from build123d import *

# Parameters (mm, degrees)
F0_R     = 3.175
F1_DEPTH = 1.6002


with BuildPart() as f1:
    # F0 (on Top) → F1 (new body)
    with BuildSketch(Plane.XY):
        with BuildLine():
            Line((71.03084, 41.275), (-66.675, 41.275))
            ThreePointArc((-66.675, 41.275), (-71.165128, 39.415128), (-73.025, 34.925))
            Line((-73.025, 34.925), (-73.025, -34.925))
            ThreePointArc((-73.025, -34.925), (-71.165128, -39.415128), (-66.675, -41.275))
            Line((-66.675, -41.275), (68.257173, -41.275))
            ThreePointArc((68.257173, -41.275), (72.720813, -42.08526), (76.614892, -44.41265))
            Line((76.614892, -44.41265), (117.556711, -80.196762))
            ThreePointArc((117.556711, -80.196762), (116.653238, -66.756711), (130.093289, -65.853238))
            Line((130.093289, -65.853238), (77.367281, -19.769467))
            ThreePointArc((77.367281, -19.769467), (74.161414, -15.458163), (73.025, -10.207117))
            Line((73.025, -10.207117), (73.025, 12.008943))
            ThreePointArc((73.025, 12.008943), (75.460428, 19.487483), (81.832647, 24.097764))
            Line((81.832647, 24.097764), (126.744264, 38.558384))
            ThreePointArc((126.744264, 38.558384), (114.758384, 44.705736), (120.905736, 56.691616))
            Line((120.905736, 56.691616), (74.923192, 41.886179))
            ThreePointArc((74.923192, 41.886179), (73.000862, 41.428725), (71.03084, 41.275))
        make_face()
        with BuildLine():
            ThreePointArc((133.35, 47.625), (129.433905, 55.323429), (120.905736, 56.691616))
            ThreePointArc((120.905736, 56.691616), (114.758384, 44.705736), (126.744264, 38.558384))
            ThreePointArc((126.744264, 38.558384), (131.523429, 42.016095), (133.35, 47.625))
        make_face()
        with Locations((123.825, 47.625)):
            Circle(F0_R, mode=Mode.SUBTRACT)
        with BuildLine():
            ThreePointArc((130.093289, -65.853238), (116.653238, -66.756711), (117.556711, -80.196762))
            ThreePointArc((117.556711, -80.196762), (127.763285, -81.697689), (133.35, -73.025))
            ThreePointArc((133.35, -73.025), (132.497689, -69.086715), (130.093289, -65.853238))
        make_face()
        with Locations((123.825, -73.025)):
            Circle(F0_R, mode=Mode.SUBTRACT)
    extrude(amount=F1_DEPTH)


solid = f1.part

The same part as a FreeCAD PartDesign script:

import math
import FreeCAD as App
import Part
import Sketcher

V = App.Vector
Q = App.Units.Quantity

doc = App.newDocument("Part")
params = doc.addObject("Spreadsheet::Sheet", "Params")
for row, (alias, value) in enumerate([
    ("sketch1_radius", "0.5000001 in"),
    ("sketch1_radius2", "0.5 in"),
    ("sketch1_diameter", "0.25 in"),
    ("sketch1_radius3", "0.25 in"),
    ("sketch1_radius4", "0.375 in"),
    ("pad1_length", "0.063 in"),
], start=1):
    params.set(f"A{row}", alias)
    params.set(f"B{row}", "=" + value)
    params.setAlias(f"B{row}", alias)

body = doc.addObject("PartDesign::Body", "Body")

# Sketch on XY plane
sketch1 = body.newObject("Sketcher::SketchObject", "Sketch")
sketch1.AttachmentSupport = (doc.getObject("XY_Plane"), [""])
sketch1.MapMode = "FlatFace"
sketch1.addGeometry([
    Part.LineSegment(V(71, 41.3, 0), V(-66.7, 41.3, 0)),  # 0
    Part.ArcOfCircle(Part.Circle(V(-66.7, 34.9, 0), V(0, 0, 1), 6.4), math.radians(90), math.radians(180)),  # 1
    Part.LineSegment(V(-73, 34.9, 0), V(-73, -34.9, 0)),  # 2
    Part.ArcOfCircle(Part.Circle(V(-66.7, -34.9, 0), V(0, 0, 1), 6.4), math.radians(-180), math.radians(-90)),  # 3
    Part.LineSegment(V(-66.7, -41.3, 0), V(68.3, -41.3, 0)),  # 4
    Part.ArcOfCircle(Part.Circle(V(68.3, -54, 0), V(0, 0, 1), 12.7), math.radians(49), math.radians(90)),  # 5
    Part.LineSegment(V(76.6, -44.4, 0), V(117.6, -80.2, 0)),  # 6
    Part.ArcOfCircle(Part.Circle(V(123.8, -73, 0), V(0, 0, 1), 9.5), math.radians(-131), math.radians(0)),  # 7
    Part.ArcOfCircle(Part.Circle(V(123.8, -73, 0), V(0, 0, 1), 9.5), math.radians(0), math.radians(49)),  # 8
    Part.LineSegment(V(130.1, -65.9, 0), V(77.4, -19.8, 0)),  # 9
    Part.ArcOfCircle(Part.Circle(V(85.7, -10.2, 0), V(0, 0, 1), 12.7), math.radians(180), math.radians(229)),  # 10
    Part.LineSegment(V(73, -10.2, 0), V(73, 12, 0)),  # 11
    Part.ArcOfCircle(Part.Circle(V(85.7, 12, 0), V(0, 0, 1), 12.7), math.radians(108), math.radians(180)),  # 12
    Part.LineSegment(V(81.8, 24.1, 0), V(126.7, 38.6, 0)),  # 13
    Part.ArcOfCircle(Part.Circle(V(123.8, 47.6, 0), V(0, 0, 1), 9.5), math.radians(-72), math.radians(0)),  # 14
    Part.ArcOfCircle(Part.Circle(V(123.8, 47.6, 0), V(0, 0, 1), 9.5), math.radians(0), math.radians(108)),  # 15
    Part.LineSegment(V(120.9, 56.7, 0), V(74.9, 41.9, 0)),  # 16
    Part.ArcOfCircle(Part.Circle(V(71, 54, 0), V(0, 0, 1), 12.7), math.radians(-90), math.radians(-72.15)),  # 17
    Part.Circle(V(123.8, -73, 0), V(0, 0, 1), 3.2),  # 18
    Part.Circle(V(123.8, 47.6, 0), V(0, 0, 1), 3.2),  # 19
], False)
sketch1.addConstraint([
    Sketcher.Constraint("Tangent", 0, 2, 1, 1),
    Sketcher.Constraint("Tangent", 1, 2, 2, 1),
    Sketcher.Constraint("Tangent", 2, 2, 3, 1),
    Sketcher.Constraint("Tangent", 3, 2, 4, 1),
    Sketcher.Constraint("Tangent", 4, 2, 5, 2),
    Sketcher.Constraint("Tangent", 5, 1, 6, 1),
    Sketcher.Constraint("Tangent", 6, 2, 7, 1),
    Sketcher.Constraint("Tangent", 7, 2, 8, 1),
    Sketcher.Constraint("Tangent", 8, 2, 9, 1),
    Sketcher.Constraint("Tangent", 9, 2, 10, 2),
    Sketcher.Constraint("Tangent", 10, 1, 11, 1),
    Sketcher.Constraint("Tangent", 11, 2, 12, 2),
    Sketcher.Constraint("Tangent", 12, 1, 13, 1),
    Sketcher.Constraint("Tangent", 13, 2, 14, 1),
    Sketcher.Constraint("Tangent", 14, 2, 15, 1),
    Sketcher.Constraint("Tangent", 15, 2, 16, 1),
    Sketcher.Constraint("Tangent", 16, 2, 17, 2),
    Sketcher.Constraint("Tangent", 17, 1, 0, 1),
    Sketcher.Constraint("Horizontal", 0),
    Sketcher.Constraint("Vertical", 2),
    Sketcher.Constraint("Horizontal", 4),
    Sketcher.Constraint("Vertical", 11),
    Sketcher.Constraint("Coincident", 18, 3, 7, 3),
    Sketcher.Constraint("Coincident", 19, 3, 14, 3),
    Sketcher.Constraint("Equal", 1, 3),
    Sketcher.Constraint("Equal", 7, 8),
    Sketcher.Constraint("Equal", 10, 12),
    Sketcher.Constraint("Equal", 8, 14),
    Sketcher.Constraint("Equal", 14, 15),
    Sketcher.Constraint("Equal", 18, 19),
    Sketcher.Constraint("Parallel", 6, 9),
    Sketcher.Constraint("Parallel", 13, 16),
    Sketcher.Constraint("Horizontal", 18, 3, 7, 2),
    Sketcher.Constraint("Horizontal", 19, 3, 14, 2),
    Sketcher.Constraint("Vertical", 8, 3, 14, 3),
    Sketcher.Constraint("Radius", 5, Q("0.5000001 in")),
    Sketcher.Constraint("Radius", 10, Q("0.5 in")),
    Sketcher.Constraint("Diameter", 18, Q("0.25 in")),
    Sketcher.Constraint("Radius", 1, Q("0.25 in")),
    Sketcher.Constraint("Radius", 7, Q("0.375 in")),
    Sketcher.Constraint("DistanceX", 3, 3, 10, 3, Q("5.9999999 in")),
    Sketcher.Constraint("DistanceY", 5, 3, 14, 3, Q("4.0000001 in")),
    Sketcher.Constraint("DistanceY", 3, 3, 0, 2, Q("3 in")),
    Sketcher.Constraint("DistanceX", 3, 3, 7, 3, Q("7.5 in")),
    Sketcher.Constraint("DistanceY", 7, 3, 3, 3, Q("1.5 in")),
    Sketcher.Constraint("DistanceX", -1, 1, 7, 2, Q("5.25 in")),
    Sketcher.Constraint("DistanceY", -1, 1, 1, 3, Q("1.375 in")),
    Sketcher.Constraint("Radius", 17, 12.699986),
    Sketcher.Constraint("Distance", 16, 48.307301),
    Sketcher.Constraint("DistanceY", 11, 1, 11, 2, 22.21606),
])
sketch1.setExpression("Constraints[35]", "Params.sketch1_radius")
sketch1.setExpression("Constraints[36]", "Params.sketch1_radius2")
sketch1.setExpression("Constraints[37]", "Params.sketch1_diameter")
sketch1.setExpression("Constraints[38]", "Params.sketch1_radius3")
sketch1.setExpression("Constraints[39]", "Params.sketch1_radius4")
pad1 = body.newObject("PartDesign::Pad", "Pad")
pad1.Profile = sketch1
pad1.setExpression("Length", "Params.pad1_length")

doc.recompute()
